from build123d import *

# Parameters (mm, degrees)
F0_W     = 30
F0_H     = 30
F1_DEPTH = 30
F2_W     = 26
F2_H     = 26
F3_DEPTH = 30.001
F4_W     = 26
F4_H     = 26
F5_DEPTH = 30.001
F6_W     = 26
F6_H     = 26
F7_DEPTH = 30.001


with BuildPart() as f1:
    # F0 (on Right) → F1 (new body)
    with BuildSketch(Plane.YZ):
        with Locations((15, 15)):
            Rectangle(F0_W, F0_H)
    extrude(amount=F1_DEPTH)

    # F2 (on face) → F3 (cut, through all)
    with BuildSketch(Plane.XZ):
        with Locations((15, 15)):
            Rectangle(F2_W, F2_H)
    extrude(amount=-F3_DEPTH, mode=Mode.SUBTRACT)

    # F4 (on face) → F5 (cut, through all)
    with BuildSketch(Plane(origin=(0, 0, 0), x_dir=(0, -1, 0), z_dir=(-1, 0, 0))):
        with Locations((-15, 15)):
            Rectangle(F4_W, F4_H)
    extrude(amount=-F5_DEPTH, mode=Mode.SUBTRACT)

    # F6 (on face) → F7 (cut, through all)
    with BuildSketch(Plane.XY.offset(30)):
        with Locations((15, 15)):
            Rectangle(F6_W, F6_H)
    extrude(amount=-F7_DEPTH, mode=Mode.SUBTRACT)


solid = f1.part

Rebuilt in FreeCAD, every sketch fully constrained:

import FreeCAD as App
import Part
import Sketcher
from FreeCAD import Vector
Q = App.Units.Quantity


def add_polygon(sketch, points):
    """Adds a closed chain of lines whose ends are joined by coincident constraints."""
    first, n = sketch.GeometryCount, len(points)
    for a, b in zip(points, points[1:] + points[:1]):
        sketch.addGeometry(Part.LineSegment(App.Vector(*a, 0), App.Vector(*b, 0)), False)
    for i in range(n):
        sketch.addConstraint(Sketcher.Constraint("Coincident", first + i, 2, first + (i + 1) % n, 1))

doc = App.newDocument("Part")
body = doc.addObject("PartDesign::Body", "Body")

# Sketch on YZ plane
sketch1 = doc.addObject("Sketcher::SketchObject", "Sketch")
body.addObject(sketch1)
sketch1.AttachmentSupport = (doc.YZ_Plane, [""])
sketch1.MapMode = "FlatFace"
add_polygon(sketch1, [(0, 30), (0, 0), (30, 0), (30, 30)])  # lines 0-3
sketch1.addConstraint([
    Sketcher.Constraint("Vertical", 0),
    Sketcher.Constraint("Horizontal", 1),
    Sketcher.Constraint("Vertical", 2),
    Sketcher.Constraint("Horizontal", 3),
    Sketcher.Constraint("Coincident", 0, 2, -1, 1),
    Sketcher.Constraint("Equal", 3, 0),
    Sketcher.Constraint("DistanceX", 1, 1, 1, 2, Q("30 mm")),
])
pad1 = doc.addObject("PartDesign::Pad", "Pad")
body.addObject(pad1)
pad1.Profile = sketch1
pad1.Length = 30

# Sketch on XZ plane
sketch2 = doc.addObject("Sketcher::SketchObject", "Sketch001")
body.addObject(sketch2)
sketch2.AttachmentSupport = (doc.XZ_Plane, [""])
sketch2.MapMode = "FlatFace"
add_polygon(sketch2, [(2, 28), (2, 2), (28, 2), (28, 28)])  # lines 0-3
sketch2.addConstraint([
    Sketcher.Constraint("Vertical", 0),
    Sketcher.Constraint("Horizontal", 1),
    Sketcher.Constraint("Vertical", 2),
    Sketcher.Constraint("Horizontal", 3),
    Sketcher.Constraint("Equal", 3, 0),
    Sketcher.Constraint("DistanceX", 1, 1, 1, 2, Q("26 mm")),
    Sketcher.Constraint("DistanceX", -1, 1, 0, 2, Q("2 mm")),
    Sketcher.Constraint("DistanceY", -1, 1, 0, 2, Q("2 mm")),
])
pocket1 = doc.addObject("PartDesign::Pocket", "Pocket")
body.addObject(pocket1)
pocket1.Profile = sketch2
pocket1.Type = "ThroughAll"

# Sketch on YZ plane
sketch3 = doc.addObject("Sketcher::SketchObject", "Sketch002")
body.addObject(sketch3)
sketch3.AttachmentSupport = (doc.YZ_Plane, [""])
sketch3.MapMode = "FlatFace"
add_polygon(sketch3, [(28, 28), (28, 2), (2, 2), (2, 28)])  # lines 0-3
sketch3.addConstraint([
    Sketcher.Constraint("Vertical", 0),
    Sketcher.Constraint("Horizontal", 1),
    Sketcher.Constraint("Vertical", 2),
    Sketcher.Constraint("Horizontal", 3),
    Sketcher.Constraint("Equal", 3, 0),
    Sketcher.Constraint("DistanceX", 1, 2, 1, 1, Q("26 mm")),
    Sketcher.Constraint("DistanceX", -1, 1, 0, 2, Q("28 mm")),
    Sketcher.Constraint("DistanceY", -1, 1, 0, 2, Q("2 mm")),
])
pocket2 = doc.addObject("PartDesign::Pocket", "Pocket001")
body.addObject(pocket2)
pocket2.Profile = sketch3
pocket2.Type = "ThroughAll"
pocket2.Reversed = True

# Sketch on XY plane
sketch4 = doc.addObject("Sketcher::SketchObject", "Sketch003")
body.addObject(sketch4)
sketch4.AttachmentSupport = (doc.XY_Plane, [""])
sketch4.MapMode = "FlatFace"
sketch4.AttachmentOffset = App.Placement(Vector(0, 0, 30), App.Rotation())
add_polygon(sketch4, [(2, 28), (2, 2), (28, 2), (28, 28)])  # lines 0-3
sketch4.addConstraint([
    Sketcher.Constraint("Vertical", 0),
    Sketcher.Constraint("Horizontal", 1),
    Sketcher.Constraint("Vertical", 2),
    Sketcher.Constraint("Horizontal", 3),
    Sketcher.Constraint("Equal", 3, 0),
    Sketcher.Constraint("DistanceX", 1, 1, 1, 2, Q("26 mm")),
    Sketcher.Constraint("DistanceX", -1, 1, 0, 2, Q("2 mm")),
    Sketcher.Constraint("DistanceY", -1, 1, 0, 2, Q("2 mm")),
])
pocket3 = doc.addObject("PartDesign::Pocket", "Pocket002")
body.addObject(pocket3)
pocket3.Profile = sketch4
pocket3.Type = "ThroughAll"

doc.recompute()
